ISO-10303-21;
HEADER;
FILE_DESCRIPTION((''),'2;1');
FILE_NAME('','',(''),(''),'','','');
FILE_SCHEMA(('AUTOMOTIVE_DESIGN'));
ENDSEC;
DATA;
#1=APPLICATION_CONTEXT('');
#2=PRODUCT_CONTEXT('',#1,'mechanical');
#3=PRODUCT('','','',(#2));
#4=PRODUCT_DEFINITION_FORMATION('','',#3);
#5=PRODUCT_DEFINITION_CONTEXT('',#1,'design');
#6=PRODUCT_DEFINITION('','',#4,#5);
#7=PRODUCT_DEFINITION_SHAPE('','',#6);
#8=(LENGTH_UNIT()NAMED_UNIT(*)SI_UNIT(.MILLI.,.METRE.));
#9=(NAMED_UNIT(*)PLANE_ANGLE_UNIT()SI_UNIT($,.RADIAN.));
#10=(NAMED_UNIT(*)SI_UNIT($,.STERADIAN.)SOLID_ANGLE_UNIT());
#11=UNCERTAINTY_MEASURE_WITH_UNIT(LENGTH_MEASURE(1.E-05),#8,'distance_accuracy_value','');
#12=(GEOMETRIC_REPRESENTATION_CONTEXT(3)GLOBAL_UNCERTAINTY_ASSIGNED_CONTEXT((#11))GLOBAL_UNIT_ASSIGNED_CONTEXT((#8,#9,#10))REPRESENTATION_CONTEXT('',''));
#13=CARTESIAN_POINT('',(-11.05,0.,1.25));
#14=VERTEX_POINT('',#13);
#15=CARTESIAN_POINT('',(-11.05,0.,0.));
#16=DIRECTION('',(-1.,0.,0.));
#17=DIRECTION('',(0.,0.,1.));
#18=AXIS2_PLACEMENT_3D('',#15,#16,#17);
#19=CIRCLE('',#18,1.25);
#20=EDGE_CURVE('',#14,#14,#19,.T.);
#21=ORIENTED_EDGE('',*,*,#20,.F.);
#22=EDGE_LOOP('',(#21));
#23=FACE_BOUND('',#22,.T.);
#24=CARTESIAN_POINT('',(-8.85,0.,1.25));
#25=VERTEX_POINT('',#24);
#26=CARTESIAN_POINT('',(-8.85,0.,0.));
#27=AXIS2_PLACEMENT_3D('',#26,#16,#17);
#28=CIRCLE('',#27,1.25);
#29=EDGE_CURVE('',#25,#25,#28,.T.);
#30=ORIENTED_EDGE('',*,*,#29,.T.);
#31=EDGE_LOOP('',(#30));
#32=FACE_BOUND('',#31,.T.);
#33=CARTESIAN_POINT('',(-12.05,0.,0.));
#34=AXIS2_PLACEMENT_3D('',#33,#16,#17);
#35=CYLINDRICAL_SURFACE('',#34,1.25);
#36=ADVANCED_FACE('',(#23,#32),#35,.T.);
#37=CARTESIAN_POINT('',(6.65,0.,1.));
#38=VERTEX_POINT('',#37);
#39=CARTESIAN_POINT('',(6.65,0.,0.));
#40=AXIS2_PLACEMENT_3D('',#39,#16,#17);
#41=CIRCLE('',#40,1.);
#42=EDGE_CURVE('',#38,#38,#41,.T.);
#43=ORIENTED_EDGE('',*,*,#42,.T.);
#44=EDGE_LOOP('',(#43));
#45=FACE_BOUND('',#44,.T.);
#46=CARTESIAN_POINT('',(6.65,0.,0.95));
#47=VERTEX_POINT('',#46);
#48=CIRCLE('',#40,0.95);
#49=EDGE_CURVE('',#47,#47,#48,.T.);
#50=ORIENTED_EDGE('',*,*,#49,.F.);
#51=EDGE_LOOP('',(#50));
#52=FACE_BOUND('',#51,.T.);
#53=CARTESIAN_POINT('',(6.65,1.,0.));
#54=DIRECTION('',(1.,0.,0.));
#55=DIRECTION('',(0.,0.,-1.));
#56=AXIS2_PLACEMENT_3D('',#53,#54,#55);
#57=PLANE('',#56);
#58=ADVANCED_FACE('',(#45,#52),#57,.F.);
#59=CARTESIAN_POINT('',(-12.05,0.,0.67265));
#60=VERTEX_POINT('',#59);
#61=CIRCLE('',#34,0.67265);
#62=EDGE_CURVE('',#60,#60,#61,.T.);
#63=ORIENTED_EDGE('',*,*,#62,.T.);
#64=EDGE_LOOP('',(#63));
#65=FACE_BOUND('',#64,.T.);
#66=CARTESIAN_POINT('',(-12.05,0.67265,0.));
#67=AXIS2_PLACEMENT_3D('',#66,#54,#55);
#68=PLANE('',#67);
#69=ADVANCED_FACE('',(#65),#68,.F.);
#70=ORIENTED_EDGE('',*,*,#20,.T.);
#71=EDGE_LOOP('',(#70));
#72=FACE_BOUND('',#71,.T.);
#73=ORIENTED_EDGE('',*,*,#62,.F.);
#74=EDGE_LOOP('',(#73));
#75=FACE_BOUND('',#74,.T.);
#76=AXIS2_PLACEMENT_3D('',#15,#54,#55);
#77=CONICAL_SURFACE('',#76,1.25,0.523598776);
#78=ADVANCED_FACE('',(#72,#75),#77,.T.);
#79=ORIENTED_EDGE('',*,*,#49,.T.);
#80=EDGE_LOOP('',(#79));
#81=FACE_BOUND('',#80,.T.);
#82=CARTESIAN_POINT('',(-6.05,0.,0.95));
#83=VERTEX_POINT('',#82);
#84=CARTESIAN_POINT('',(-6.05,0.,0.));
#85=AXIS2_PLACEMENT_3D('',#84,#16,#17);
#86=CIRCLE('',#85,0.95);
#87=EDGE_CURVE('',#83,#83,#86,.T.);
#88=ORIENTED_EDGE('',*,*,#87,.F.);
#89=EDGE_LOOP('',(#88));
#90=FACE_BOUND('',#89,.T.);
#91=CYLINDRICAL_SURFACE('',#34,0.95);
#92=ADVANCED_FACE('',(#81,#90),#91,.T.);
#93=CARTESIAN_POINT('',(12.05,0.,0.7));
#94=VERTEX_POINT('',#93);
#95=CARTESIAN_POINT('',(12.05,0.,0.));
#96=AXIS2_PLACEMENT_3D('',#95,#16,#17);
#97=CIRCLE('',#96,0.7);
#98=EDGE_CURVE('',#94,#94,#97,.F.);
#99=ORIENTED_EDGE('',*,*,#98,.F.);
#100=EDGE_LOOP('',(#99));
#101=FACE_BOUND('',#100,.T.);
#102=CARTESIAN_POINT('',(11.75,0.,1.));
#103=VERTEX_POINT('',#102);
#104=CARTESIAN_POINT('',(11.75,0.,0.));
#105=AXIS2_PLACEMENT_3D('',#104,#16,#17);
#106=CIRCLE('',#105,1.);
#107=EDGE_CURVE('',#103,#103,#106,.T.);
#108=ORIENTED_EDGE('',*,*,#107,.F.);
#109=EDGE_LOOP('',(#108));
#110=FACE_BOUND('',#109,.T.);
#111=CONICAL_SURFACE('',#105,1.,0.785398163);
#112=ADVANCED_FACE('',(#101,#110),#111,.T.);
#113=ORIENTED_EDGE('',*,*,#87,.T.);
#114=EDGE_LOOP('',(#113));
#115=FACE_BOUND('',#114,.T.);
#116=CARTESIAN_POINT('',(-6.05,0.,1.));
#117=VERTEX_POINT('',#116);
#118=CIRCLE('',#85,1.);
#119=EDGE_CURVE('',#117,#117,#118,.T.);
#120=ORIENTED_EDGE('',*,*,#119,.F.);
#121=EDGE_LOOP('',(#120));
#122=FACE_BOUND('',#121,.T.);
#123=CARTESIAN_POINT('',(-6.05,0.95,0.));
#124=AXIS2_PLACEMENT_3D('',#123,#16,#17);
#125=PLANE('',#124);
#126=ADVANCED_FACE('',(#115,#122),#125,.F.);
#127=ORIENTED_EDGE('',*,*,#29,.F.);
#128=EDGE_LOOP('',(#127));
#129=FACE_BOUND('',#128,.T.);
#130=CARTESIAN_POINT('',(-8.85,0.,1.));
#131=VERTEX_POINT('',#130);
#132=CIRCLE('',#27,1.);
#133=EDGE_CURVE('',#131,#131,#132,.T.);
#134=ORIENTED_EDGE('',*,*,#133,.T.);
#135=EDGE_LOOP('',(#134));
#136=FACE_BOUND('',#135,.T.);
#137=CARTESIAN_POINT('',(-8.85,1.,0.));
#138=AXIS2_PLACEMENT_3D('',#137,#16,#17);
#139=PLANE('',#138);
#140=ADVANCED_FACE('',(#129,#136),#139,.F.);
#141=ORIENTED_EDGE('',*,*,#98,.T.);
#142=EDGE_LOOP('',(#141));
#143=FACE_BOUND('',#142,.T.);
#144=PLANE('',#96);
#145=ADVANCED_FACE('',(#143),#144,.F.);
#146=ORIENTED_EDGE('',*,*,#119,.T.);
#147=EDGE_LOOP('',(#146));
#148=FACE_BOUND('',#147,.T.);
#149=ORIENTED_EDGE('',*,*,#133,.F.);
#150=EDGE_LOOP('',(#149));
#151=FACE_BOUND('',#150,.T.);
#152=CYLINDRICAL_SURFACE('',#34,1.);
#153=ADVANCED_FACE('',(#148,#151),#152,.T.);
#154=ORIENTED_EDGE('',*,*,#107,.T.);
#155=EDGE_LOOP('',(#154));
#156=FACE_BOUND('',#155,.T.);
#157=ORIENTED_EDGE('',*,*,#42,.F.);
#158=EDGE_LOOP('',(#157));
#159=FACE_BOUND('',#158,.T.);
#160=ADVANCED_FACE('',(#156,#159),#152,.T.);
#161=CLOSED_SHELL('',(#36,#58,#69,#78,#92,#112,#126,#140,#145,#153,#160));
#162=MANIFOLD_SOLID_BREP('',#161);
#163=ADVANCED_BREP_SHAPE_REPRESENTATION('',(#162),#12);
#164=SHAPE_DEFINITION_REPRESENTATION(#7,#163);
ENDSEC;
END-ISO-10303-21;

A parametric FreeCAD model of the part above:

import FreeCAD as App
import Part
import Sketcher
Q = App.Units.Quantity


def edges_at(feature, points):
    """Names of the edges that pass closest to the given points."""
    edges = feature.Shape.Edges
    near = lambda p: min(range(len(edges)), key=lambda i: edges[i].distToShape(Part.Vertex(*p))[0])
    return sorted({f"Edge{near(p) + 1}" for p in points})


def add_polygon(sketch, points):
    """Adds a closed chain of lines whose ends are joined by coincident constraints."""
    first, n = sketch.GeometryCount, len(points)
    for a, b in zip(points, points[1:] + points[:1]):
        sketch.addGeometry(Part.LineSegment(App.Vector(*a, 0), App.Vector(*b, 0)), False)
    for i in range(n):
        sketch.addConstraint(Sketcher.Constraint("Coincident", first + i, 2, first + (i + 1) % n, 1))

doc = App.newDocument("Part")
params = doc.addObject("Spreadsheet::Sheet", "Params")
for row, (alias, value) in enumerate([
    ("sketch1_height", "1 mm"),
    ("sketch1_width", "5.4 mm"),
    ("sketch1_width2", "12.7 mm"),
    ("sketch1_width3", "2.8 mm"),
    ("sketch1_width4", "2.2 mm"),
    ("revolution_angle", "360 deg"),
    ("chamfer_size", "0.3 mm"),
], start=1):
    params.set(f"A{row}", alias)
    params.set(f"B{row}", "=" + value)
    params.setAlias(f"B{row}", alias)

body = doc.addObject("PartDesign::Body", "Body")

sketch1 = doc.addObject("Sketcher::SketchObject", "Sketch")
body.addObject(sketch1)
sketch1.AttachmentSupport = (doc.XY_Plane, [""])
sketch1.MapMode = "FlatFace"
add_polygon(sketch1, [(12.05, 0), (12.05, 1), (6.65, 1), (6.65, 0.95), (-6.05, 0.95), (-6.05, 1), (-8.85, 1), (-8.85, 1.25), (-11.05, 1.25), (-12.05, 0.67), (-12.05, 0)])
sketch1.addConstraint([
    Sketcher.Constraint("Vertical", 0),
    Sketcher.Constraint("Horizontal", 1),
    Sketcher.Constraint("Vertical", 2),
    Sketcher.Constraint("Horizontal", 3),
    Sketcher.Constraint("Vertical", 4),
    Sketcher.Constraint("Horizontal", 5),
    Sketcher.Constraint("Vertical", 6),
    Sketcher.Constraint("Horizontal", 7),
    Sketcher.Constraint("Vertical", 9),
    Sketcher.Constraint("Horizontal", 10),
    Sketcher.Constraint("Symmetric", 9, 2, 10, 2, -1, 1),
    Sketcher.Constraint("Horizontal", 1, 2, 4, 2),
    Sketcher.Constraint("DistanceY", 0, 1, 0, 2, 1.0),
    Sketcher.Constraint("Angle", 8, Q("-150 deg")),
    Sketcher.Constraint("DistanceX", 1, 2, 1, 1, 5.4),
    Sketcher.Constraint("DistanceX", 3, 2, 3, 1, 12.7),
    Sketcher.Constraint("DistanceX", 5, 2, 5, 1, 2.8),
    Sketcher.Constraint("DistanceX", 7, 2, 7, 1, 2.2),
    Sketcher.Constraint("DistanceX", 10, 1, 10, 2, 24.1),
    Sketcher.Constraint("DistanceY", 2, 2, 2, 1, 0.05),
    Sketcher.Constraint("DistanceY", 6, 1, 6, 2, 0.25),
])
sketch1.setExpression("Constraints[23]", "Params.sketch1_height")
sketch1.setExpression("Constraints[25]", "Params.sketch1_width")
sketch1.setExpression("Constraints[26]", "Params.sketch1_width2")
sketch1.setExpression("Constraints[27]", "Params.sketch1_width3")
sketch1.setExpression("Constraints[28]", "Params.sketch1_width4")
revolution = doc.addObject("PartDesign::Revolution", "Revolution")
body.addObject(revolution)
revolution.Profile = sketch1
revolution.ReferenceAxis = (sketch1, ["H_Axis"])
revolution.setExpression("Angle", "Params.revolution_angle")
doc.recompute()

chamfer = doc.addObject("PartDesign::Chamfer", "Chamfer")
body.addObject(chamfer)
chamfer.Base = (revolution, edges_at(revolution, [(12.05, -1, 0)]))
chamfer.setExpression("Size", "Params.chamfer_size")

doc.recompute()
